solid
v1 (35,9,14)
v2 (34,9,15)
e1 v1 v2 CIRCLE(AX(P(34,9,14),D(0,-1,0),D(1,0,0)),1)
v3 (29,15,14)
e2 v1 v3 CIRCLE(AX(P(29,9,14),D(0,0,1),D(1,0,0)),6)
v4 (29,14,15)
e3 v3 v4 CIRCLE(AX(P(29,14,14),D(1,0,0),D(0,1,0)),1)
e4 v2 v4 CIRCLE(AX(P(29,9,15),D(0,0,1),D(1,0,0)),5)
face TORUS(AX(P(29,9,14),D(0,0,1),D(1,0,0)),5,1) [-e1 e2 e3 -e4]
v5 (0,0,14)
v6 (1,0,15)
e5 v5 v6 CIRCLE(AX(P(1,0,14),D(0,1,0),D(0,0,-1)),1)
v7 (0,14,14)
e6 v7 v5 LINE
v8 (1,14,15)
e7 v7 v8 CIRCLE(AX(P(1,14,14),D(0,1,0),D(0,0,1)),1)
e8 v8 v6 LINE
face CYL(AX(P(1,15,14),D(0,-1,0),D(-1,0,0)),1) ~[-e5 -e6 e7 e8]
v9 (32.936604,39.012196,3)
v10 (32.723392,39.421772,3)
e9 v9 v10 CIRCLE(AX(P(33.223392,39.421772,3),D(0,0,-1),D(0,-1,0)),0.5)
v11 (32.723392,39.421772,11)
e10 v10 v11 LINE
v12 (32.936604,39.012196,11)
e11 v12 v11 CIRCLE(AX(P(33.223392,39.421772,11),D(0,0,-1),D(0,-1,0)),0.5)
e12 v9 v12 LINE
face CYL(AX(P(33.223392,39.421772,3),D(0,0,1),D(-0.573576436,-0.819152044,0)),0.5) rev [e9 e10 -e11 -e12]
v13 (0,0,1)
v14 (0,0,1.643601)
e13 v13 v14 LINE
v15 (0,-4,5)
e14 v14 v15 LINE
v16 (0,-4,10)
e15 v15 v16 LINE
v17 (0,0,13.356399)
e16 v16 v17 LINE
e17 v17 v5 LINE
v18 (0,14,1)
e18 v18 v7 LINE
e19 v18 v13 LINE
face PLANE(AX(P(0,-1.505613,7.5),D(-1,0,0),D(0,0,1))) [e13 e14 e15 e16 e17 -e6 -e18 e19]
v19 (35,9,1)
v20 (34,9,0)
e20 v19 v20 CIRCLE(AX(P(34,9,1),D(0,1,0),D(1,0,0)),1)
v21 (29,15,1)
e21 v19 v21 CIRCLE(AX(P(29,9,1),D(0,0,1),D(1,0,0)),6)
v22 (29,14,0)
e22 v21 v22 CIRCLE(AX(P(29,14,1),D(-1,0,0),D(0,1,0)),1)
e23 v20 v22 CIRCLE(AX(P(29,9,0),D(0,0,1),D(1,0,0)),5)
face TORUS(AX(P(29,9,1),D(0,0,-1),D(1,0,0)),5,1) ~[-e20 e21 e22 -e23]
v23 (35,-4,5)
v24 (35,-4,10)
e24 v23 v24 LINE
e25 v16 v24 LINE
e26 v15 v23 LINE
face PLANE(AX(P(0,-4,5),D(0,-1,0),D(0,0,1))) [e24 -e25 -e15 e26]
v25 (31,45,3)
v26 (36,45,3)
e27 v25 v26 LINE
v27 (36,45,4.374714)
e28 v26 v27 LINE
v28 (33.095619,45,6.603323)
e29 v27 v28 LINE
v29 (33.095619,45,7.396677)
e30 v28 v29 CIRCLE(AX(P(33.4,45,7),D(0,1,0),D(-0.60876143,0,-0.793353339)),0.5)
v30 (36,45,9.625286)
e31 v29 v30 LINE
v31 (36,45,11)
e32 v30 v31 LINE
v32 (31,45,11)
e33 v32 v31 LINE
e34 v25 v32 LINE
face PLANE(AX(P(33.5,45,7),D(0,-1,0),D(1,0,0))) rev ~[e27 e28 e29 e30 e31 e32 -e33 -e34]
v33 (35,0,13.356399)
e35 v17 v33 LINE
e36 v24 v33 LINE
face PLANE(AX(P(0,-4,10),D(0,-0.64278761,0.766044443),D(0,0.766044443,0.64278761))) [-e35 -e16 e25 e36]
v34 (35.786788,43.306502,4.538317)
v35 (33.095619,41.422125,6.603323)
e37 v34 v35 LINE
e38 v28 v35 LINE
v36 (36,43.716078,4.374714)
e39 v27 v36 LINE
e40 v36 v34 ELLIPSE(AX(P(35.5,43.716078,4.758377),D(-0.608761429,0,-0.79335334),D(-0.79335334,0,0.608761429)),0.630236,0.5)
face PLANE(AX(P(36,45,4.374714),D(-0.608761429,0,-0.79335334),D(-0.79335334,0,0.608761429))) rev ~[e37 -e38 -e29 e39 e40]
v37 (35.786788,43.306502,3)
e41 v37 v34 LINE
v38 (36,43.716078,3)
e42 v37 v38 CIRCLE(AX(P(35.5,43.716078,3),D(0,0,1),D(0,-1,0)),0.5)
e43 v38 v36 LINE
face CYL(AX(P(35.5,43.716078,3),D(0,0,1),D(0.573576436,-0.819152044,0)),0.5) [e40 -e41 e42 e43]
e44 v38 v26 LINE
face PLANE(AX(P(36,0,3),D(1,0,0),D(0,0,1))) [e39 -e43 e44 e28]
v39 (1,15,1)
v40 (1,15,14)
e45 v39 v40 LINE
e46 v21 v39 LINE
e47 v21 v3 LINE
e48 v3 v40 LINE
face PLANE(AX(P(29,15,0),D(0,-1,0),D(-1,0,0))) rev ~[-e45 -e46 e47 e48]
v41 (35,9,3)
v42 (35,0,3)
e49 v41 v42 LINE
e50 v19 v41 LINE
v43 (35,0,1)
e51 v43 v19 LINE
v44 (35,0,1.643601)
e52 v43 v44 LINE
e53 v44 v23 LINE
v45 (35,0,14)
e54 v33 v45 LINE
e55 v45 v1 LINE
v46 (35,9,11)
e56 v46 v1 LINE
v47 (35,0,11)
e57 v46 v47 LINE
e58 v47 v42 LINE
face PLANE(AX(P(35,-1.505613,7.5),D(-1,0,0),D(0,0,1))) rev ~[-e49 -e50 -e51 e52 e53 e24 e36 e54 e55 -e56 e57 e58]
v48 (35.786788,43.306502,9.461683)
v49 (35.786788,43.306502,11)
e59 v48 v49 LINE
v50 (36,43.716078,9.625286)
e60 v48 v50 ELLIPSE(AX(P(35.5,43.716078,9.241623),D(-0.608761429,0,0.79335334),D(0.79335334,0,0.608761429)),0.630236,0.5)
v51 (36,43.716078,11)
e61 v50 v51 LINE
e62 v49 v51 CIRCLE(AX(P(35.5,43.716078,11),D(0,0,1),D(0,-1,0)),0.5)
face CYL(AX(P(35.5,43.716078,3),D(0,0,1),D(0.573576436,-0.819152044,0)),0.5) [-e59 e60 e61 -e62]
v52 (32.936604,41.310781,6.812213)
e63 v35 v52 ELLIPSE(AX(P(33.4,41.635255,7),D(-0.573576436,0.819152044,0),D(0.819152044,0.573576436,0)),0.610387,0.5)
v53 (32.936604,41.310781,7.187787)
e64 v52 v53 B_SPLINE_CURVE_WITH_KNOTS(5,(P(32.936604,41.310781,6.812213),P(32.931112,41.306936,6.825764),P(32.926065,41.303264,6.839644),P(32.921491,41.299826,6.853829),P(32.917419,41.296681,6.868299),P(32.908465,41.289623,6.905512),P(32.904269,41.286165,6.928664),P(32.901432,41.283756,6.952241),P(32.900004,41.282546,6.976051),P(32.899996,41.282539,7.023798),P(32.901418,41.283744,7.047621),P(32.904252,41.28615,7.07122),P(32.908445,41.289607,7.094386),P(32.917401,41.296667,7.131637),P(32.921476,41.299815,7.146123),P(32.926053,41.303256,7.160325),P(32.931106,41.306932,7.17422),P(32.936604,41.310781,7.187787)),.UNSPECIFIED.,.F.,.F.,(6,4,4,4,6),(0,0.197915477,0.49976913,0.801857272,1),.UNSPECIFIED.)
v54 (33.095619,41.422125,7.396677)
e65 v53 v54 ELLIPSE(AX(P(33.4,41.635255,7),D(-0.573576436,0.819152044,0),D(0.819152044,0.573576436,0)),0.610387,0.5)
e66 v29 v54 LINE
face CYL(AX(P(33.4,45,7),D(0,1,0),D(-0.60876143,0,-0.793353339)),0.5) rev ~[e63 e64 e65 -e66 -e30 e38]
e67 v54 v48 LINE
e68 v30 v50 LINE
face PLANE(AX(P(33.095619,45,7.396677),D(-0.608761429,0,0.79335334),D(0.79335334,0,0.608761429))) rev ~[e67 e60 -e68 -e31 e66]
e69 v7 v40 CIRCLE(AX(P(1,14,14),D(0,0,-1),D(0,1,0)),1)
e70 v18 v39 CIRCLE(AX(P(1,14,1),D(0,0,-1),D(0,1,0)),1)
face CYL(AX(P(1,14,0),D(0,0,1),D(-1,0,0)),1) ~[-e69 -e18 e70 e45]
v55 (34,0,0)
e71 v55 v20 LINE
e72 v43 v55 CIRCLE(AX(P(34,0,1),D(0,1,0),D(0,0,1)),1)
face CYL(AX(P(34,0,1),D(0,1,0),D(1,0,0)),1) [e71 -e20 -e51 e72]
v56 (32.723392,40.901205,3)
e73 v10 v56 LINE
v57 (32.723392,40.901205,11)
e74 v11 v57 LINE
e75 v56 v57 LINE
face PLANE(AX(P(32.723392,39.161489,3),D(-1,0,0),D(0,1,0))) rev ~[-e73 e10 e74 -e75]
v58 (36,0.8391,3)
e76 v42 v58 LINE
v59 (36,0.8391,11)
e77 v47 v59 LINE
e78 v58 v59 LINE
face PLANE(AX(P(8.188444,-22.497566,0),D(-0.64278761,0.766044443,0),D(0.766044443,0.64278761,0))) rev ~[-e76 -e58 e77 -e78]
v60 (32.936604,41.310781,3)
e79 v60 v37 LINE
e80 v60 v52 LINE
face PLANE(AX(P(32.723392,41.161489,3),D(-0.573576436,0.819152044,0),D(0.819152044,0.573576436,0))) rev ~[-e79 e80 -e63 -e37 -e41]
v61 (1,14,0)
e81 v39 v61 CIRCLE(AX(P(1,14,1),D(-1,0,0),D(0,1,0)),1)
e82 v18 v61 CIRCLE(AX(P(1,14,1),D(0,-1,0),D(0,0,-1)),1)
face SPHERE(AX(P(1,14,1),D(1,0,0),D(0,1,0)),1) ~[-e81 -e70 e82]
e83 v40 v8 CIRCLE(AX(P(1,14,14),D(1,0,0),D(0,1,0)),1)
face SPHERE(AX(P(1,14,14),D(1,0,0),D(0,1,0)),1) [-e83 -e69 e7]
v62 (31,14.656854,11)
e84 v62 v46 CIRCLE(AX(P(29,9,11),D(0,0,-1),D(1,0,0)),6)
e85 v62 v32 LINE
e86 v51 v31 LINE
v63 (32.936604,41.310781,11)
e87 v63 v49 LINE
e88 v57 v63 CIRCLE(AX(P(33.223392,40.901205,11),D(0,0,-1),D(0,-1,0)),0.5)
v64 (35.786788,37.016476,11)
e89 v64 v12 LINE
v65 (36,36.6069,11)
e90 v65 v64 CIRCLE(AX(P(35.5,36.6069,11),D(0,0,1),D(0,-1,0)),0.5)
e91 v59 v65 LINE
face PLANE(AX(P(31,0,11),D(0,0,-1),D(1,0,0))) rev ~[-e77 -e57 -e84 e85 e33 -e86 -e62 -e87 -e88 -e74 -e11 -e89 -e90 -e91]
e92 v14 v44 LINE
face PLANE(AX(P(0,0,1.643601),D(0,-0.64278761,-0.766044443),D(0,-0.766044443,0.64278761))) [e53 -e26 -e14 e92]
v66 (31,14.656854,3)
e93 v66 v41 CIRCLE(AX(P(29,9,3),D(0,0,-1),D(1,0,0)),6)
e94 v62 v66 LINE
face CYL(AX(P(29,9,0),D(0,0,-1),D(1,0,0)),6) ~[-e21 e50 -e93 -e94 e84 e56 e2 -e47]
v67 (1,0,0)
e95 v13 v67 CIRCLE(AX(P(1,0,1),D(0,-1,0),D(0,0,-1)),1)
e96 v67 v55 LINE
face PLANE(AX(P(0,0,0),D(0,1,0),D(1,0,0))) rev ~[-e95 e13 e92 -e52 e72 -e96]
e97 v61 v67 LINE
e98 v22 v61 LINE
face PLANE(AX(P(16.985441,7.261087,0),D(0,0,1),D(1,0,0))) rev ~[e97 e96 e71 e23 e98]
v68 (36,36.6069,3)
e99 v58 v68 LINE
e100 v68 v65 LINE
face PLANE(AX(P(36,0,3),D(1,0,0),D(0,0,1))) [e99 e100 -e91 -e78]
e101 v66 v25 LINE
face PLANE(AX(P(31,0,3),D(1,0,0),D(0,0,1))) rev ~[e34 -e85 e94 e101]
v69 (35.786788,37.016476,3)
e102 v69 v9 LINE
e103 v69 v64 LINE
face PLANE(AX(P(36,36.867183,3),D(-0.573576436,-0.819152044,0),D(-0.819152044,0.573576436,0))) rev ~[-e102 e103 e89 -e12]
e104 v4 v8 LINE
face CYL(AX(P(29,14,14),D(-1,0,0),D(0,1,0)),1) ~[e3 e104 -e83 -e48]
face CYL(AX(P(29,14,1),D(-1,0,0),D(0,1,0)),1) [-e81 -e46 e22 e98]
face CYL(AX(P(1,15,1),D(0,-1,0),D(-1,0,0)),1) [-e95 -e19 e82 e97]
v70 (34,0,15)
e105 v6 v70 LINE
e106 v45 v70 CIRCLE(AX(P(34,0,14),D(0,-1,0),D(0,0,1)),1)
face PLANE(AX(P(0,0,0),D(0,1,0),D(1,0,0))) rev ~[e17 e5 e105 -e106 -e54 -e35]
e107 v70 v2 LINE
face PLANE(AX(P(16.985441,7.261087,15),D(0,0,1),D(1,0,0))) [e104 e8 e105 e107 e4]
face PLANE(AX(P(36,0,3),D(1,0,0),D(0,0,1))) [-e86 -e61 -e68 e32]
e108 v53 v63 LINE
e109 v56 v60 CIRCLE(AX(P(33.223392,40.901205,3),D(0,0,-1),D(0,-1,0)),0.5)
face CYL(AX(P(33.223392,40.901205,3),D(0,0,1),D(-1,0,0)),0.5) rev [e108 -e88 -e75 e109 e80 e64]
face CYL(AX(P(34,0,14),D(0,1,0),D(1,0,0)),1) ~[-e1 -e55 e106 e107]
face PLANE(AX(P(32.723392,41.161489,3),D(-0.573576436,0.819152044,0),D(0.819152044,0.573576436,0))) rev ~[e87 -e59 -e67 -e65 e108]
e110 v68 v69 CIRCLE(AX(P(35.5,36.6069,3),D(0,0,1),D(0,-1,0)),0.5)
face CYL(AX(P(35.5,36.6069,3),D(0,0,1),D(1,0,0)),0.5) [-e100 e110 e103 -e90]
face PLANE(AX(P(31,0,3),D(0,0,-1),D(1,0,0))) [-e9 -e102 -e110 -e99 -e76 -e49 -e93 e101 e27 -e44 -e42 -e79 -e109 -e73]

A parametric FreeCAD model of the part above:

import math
import FreeCAD as App
import Part
import Sketcher
Q = App.Units.Quantity


def edges_at(feature, points):
    """Names of the edges that pass closest to the given points."""
    edges = feature.Shape.Edges
    near = lambda p: min(range(len(edges)), key=lambda i: edges[i].distToShape(Part.Vertex(*p))[0])
    return sorted({f"Edge{near(p) + 1}" for p in points})


def faces_at(feature, points):
    """Names of the faces that lie closest to the given points."""
    faces = feature.Shape.Faces
    near = lambda p: min(range(len(faces)), key=lambda i: faces[i].distToShape(Part.Vertex(*p))[0])
    return sorted({f"Face{near(p) + 1}" for p in points})

doc = App.newDocument("Part")
body = doc.addObject("PartDesign::Body", "Body")

sketch1 = doc.addObject("Sketcher::SketchObject", "Sketch")
body.addObject(sketch1)
sketch1.AttachmentSupport = (doc.XY_Plane, [""])
sketch1.MapMode = "FlatFace"
sketch1.addGeometry([
    Part.LineSegment(App.Vector(0, 0, 0), App.Vector(35, 0, 0)),
    Part.LineSegment(App.Vector(35, 0, 0), App.Vector(35, 9, 0)),
    Part.ArcOfCircle(Part.Circle(App.Vector(29, 9, 0), App.Vector(0, 0, 1), 6), math.radians(0), math.radians(90)),
    Part.LineSegment(App.Vector(29, 15, 0), App.Vector(0, 15, 0)),
    Part.LineSegment(App.Vector(0, 15, 0), App.Vector(0, 0, 0)),
], False)
sketch1.addConstraint([
    Sketcher.Constraint("Coincident", 0, 2, 1, 1),
    Sketcher.Constraint("Tangent", 1, 2, 2, 1),
    Sketcher.Constraint("Tangent", 2, 2, 3, 1),
    Sketcher.Constraint("Coincident", 3, 2, 4, 1),
    Sketcher.Constraint("Coincident", 4, 2, 0, 1),
    Sketcher.Constraint("Horizontal", 0),
    Sketcher.Constraint("Vertical", 1),
    Sketcher.Constraint("Horizontal", 3),
    Sketcher.Constraint("Vertical", 4),
    Sketcher.Constraint("Coincident", 4, 2, -1, 1),
    Sketcher.Constraint("Radius", 2, Q("6 mm")),
    Sketcher.Constraint("DistanceX", 0, 1, 0, 2, Q("35 mm")),
    Sketcher.Constraint("DistanceY", 1, 1, 1, 2, Q("9 mm")),
])
pad1 = doc.addObject("PartDesign::Pad", "Pad")
body.addObject(pad1)
pad1.Profile = sketch1
pad1.Length = 15

sketch2 = doc.addObject("Sketcher::SketchObject", "Sketch001")
body.addObject(sketch2)
sketch2.AttachmentSupport = (doc.XZ_Plane, [""])
sketch2.MapMode = "FlatFace"
sketch2.addGeometry([
    Part.LineSegment(App.Vector(31, 11, 0), App.Vector(31, 3, 0)),
    Part.LineSegment(App.Vector(31, 3, 0), App.Vector(36, 3, 0)),
    Part.LineSegment(App.Vector(36, 3, 0), App.Vector(36, 11, 0)),
    Part.LineSegment(App.Vector(36, 11, 0), App.Vector(31, 11, 0)),
], False)
sketch2.addConstraint([
    Sketcher.Constraint("Coincident", 0, 2, 1, 1),
    Sketcher.Constraint("Coincident", 1, 2, 2, 1),
    Sketcher.Constraint("Coincident", 2, 2, 3, 1),
    Sketcher.Constraint("Coincident", 3, 2, 0, 1),
    Sketcher.Constraint("Vertical", 0),
    Sketcher.Constraint("Horizontal", 1),
    Sketcher.Constraint("Vertical", 2),
    Sketcher.Constraint("Horizontal", 3),
    Sketcher.Constraint("DistanceX", 1, 1, 1, 2, Q("5 mm")),
    Sketcher.Constraint("DistanceY", 0, 2, 0, 1, Q("8 mm")),
    Sketcher.Constraint("DistanceX", -1, 1, 0, 2, Q("31 mm")),
    Sketcher.Constraint("DistanceY", -1, 1, 0, 2, Q("3 mm")),
])
pad2 = doc.addObject("PartDesign::Pad", "Pad001")
body.addObject(pad2)
pad2.Profile = sketch2
pad2.Length = 45
pad2.Reversed = True

sketch3 = doc.addObject("Sketcher::SketchObject", "Sketch002")
body.addObject(sketch3)
sketch3.AttachmentSupport = (doc.XY_Plane, [""])
sketch3.MapMode = "FlatFace"
sketch3.AttachmentOffset = App.Placement(App.Vector(0, 0, 3), App.Rotation())
sketch3.addGeometry([
    Part.LineSegment(App.Vector(36, 43.5, 0), App.Vector(36, 36.9, 0)),
    Part.LineSegment(App.Vector(36, 36.9, 0), App.Vector(32.7, 39.2, 0)),
    Part.LineSegment(App.Vector(32.7, 39.2, 0), App.Vector(32.7, 41.2, 0)),
    Part.LineSegment(App.Vector(32.7, 41.2, 0), App.Vector(36, 43.5, 0)),
], False)
sketch3.addConstraint([
    Sketcher.Constraint("Coincident", 0, 2, 1, 1),
    Sketcher.Constraint("Coincident", 1, 2, 2, 1),
    Sketcher.Constraint("Coincident", 2, 2, 3, 1),
    Sketcher.Constraint("Coincident", 3, 2, 0, 1),
    Sketcher.Constraint("Vertical", 0),
    Sketcher.Constraint("Vertical", 2),
    Sketcher.Constraint("Equal", 1, 3),
    Sketcher.Constraint("DistanceY", 2, 1, 2, 2, Q("2 mm")),
    Sketcher.Constraint("Angle", 1, Q("145 deg")),
    Sketcher.Constraint("Distance", 1, Q("4 mm")),
    Sketcher.Constraint("DistanceX", -1, 1, 0, 2, Q("36 mm")),
    Sketcher.Constraint("DistanceY", -1, 1, 1, 2, Q("39.161489 mm")),
])
pocket1 = doc.addObject("PartDesign::Pocket", "Pocket")
body.addObject(pocket1)
pocket1.Profile = sketch3
pocket1.Type = "ThroughAll"
pocket1.Reversed = True
doc.recompute()

fillet = doc.addObject("PartDesign::Fillet", "Fillet")
body.addObject(fillet)
fillet.Base = (pocket1, edges_at(pocket1, [
    (36, 36.867, 7),
    (36, 43.456, 7),
    (32.723, 41.161, 7),
    (32.723, 39.161, 7),
]))
fillet.Radius = 0.5

sketch4 = doc.addObject("Sketcher::SketchObject", "Sketch003")
body.addObject(sketch4)
sketch4.AttachmentSupport = (doc.XZ_Plane, [""])
sketch4.MapMode = "FlatFace"
sketch4.AttachmentOffset = App.Placement(App.Vector(0, 0, -45), App.Rotation())
sketch4.addGeometry([
    Part.LineSegment(App.Vector(36, 4.4, 0), App.Vector(33.1, 6.6, 0)),
    Part.ArcOfCircle(Part.Circle(App.Vector(33.4, 7, 0), App.Vector(0, 0, 1), 0.5), math.radians(128), math.radians(232)),
    Part.LineSegment(App.Vector(33.1, 7.4, 0), App.Vector(36, 9.6, 0)),
    Part.LineSegment(App.Vector(36, 9.6, 0), App.Vector(36, 4.4, 0)),
], False)
sketch4.addConstraint([
    Sketcher.Constraint("Tangent", 0, 2, 1, 2),
    Sketcher.Constraint("Tangent", 1, 1, 2, 1),
    Sketcher.Constraint("Coincident", 2, 2, 3, 1),
    Sketcher.Constraint("Coincident", 3, 2, 0, 1),
    Sketcher.Constraint("Vertical", 3),
    Sketcher.Constraint("Vertical", 0, 2, 1, 1),
    Sketcher.Constraint("Radius", 1, Q("0.5 mm")),
    Sketcher.Constraint("DistanceY", -1, 1, 1, 3, Q("7 mm")),
    Sketcher.Constraint("DistanceX", -1, 1, 2, 2, Q("36 mm")),
    Sketcher.Constraint("Angle", 0, Q("142.5 deg")),
    Sketcher.Constraint("DistanceX", -1, 1, 1, 3, Q("33.4 mm")),
])
pocket2 = doc.addObject("PartDesign::Pocket", "Pocket001")
body.addObject(pocket2)
pocket2.Profile = sketch4
pocket2.Length = 5
pocket2.Reversed = True

sketch5 = doc.addObject("Sketcher::SketchObject", "Sketch004")
body.addObject(sketch5)
sketch5.AttachmentSupport = (doc.YZ_Plane, [""])
sketch5.MapMode = "FlatFace"
sketch5.addGeometry([
    Part.LineSegment(App.Vector(0, 13, 0), App.Vector(0, 2, 0)),
    Part.LineSegment(App.Vector(0, 2, 0), App.Vector(-4, 5, 0)),
    Part.LineSegment(App.Vector(-4, 5, 0), App.Vector(-4, 10, 0)),
    Part.LineSegment(App.Vector(-4, 10, 0), App.Vector(0, 13, 0)),
], False)
sketch5.addConstraint([
    Sketcher.Constraint("Coincident", 0, 2, 1, 1),
    Sketcher.Constraint("Coincident", 1, 2, 2, 1),
    Sketcher.Constraint("Coincident", 2, 2, 3, 1),
    Sketcher.Constraint("Coincident", 3, 2, 0, 1),
    Sketcher.Constraint("Vertical", 0),
    Sketcher.Constraint("Vertical", 2),
    Sketcher.Constraint("PointOnObject", 0, 2, -2),
    Sketcher.Constraint("Equal", 1, 3),
    Sketcher.Constraint("DistanceY", 2, 1, 2, 2, Q("5 mm")),
    Sketcher.Constraint("Angle", 1, Q("140 deg")),
    Sketcher.Constraint("DistanceX", 1, 2, -1, 1, Q("4 mm")),
    Sketcher.Constraint("DistanceY", -1, 1, 1, 2, Q("5 mm")),
])
pad3 = doc.addObject("PartDesign::Pad", "Pad002")
body.addObject(pad3)
pad3.Profile = sketch5
pad3.Length = 35
doc.recompute()

fillet2 = doc.addObject("PartDesign::Fillet", "Fillet001")
body.addObject(fillet2)
fillet2.Base = (pad3, edges_at(pad3, [
    (35, 4.5, 0),
    (33.243, 13.243, 0),
    (14.5, 15, 0),
    (35, 4.5, 15),
    (33.243, 13.243, 15),
    (14.5, 15, 15),
    (0, 15, 7.5),
    (0, 7.5, 15),
    (0, 7.5, 0),
]))
fillet2.Radius = 1
doc.recompute()

datumplane = doc.addObject("PartDesign::Plane", "DatumPlane")
body.addObject(datumplane)
datumplane.AttachmentSupport = (doc.YZ_Plane, [""])
datumplane.MapMode = "FlatFace"
datumplane.AttachmentOffset = App.Placement(App.Vector(0, 0, 35), App.Rotation())
draft = doc.addObject("PartDesign::Draft", "Draft")
body.addObject(draft)
draft.Base = (fillet2, faces_at(fillet2, [(35.5, 0, 7)]))
draft.NeutralPlane = (datumplane, [""])
draft.Angle = 40
draft.Reversed = False

doc.recompute()
